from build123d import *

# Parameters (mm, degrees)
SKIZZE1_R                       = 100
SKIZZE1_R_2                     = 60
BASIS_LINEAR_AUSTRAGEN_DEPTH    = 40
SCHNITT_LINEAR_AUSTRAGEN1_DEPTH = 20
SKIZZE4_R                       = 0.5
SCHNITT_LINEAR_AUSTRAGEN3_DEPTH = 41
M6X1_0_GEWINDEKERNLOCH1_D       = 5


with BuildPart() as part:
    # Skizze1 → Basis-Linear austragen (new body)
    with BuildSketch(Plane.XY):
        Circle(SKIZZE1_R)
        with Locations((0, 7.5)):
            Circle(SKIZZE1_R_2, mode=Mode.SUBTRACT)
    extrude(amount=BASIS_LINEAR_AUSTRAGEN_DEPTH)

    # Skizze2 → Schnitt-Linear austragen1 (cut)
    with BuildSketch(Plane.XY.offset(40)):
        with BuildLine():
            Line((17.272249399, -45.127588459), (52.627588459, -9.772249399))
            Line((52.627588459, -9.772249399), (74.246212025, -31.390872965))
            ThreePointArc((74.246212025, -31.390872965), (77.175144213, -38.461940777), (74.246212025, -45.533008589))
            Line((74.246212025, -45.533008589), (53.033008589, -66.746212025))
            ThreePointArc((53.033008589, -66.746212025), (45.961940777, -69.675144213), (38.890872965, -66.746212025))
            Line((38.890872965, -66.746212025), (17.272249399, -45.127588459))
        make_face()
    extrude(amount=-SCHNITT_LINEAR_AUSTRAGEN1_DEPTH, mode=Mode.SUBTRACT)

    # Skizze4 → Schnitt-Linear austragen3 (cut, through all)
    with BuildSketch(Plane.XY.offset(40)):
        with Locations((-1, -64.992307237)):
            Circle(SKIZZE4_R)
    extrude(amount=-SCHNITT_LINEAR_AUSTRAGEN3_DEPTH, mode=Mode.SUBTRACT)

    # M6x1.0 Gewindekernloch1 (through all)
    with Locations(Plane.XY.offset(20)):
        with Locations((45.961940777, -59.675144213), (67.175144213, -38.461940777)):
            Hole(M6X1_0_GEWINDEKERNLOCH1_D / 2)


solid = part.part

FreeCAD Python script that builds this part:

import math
import FreeCAD as App
import Part
import Sketcher
Q = App.Units.Quantity

doc = App.newDocument("Part")
body = doc.addObject("PartDesign::Body", "Body")

# Sketch on XY plane
sketch1 = body.newObject("Sketcher::SketchObject", "Sketch")
sketch1.AttachmentSupport = (doc.getObject("XY_Plane"), [""])
sketch1.MapMode = "FlatFace"
sketch1.addGeometry(Part.Circle(App.Vector(0, 0, 0), App.Vector(0, 0, 1), 100), False)
sketch1.addGeometry(Part.Circle(App.Vector(0, 8, 0), App.Vector(0, 0, 1), 60), False)
sketch1.addConstraint(Sketcher.Constraint("Coincident", 0, 3, -1, 1))
sketch1.addConstraint(Sketcher.Constraint("PointOnObject", 1, 3, -2))
sketch1.addConstraint(Sketcher.Constraint("Diameter", 0, Q("200 mm")))
sketch1.addConstraint(Sketcher.Constraint("Diameter", 1, Q("120 mm")))
sketch1.addConstraint(Sketcher.Constraint("DistanceY", -1, 1, 1, 3, Q("7.5 mm")))
pad1 = body.newObject("PartDesign::Pad", "Pad")
pad1.Profile = sketch1
pad1.Length = 40

# Sketch on XY plane
sketch2 = body.newObject("Sketcher::SketchObject", "Sketch001")
sketch2.AttachmentSupport = (doc.getObject("XY_Plane"), [""])
sketch2.MapMode = "FlatFace"
sketch2.AttachmentOffset = App.Placement(App.Vector(0, 0, 40), App.Rotation())
sketch2.addGeometry(Part.LineSegment(App.Vector(53, -10, 0), App.Vector(17, -45, 0)), False)
sketch2.addGeometry(Part.LineSegment(App.Vector(17, -45, 0), App.Vector(39, -67, 0)), False)
sketch2.addGeometry(Part.ArcOfCircle(Part.Circle(App.Vector(46, -60, 0), App.Vector(0, 0, 1), 10), math.radians(-135), math.radians(-45)), False)
sketch2.addGeometry(Part.LineSegment(App.Vector(53, -67, 0), App.Vector(74, -46, 0)), False)
sketch2.addGeometry(Part.ArcOfCircle(Part.Circle(App.Vector(67, -38, 0), App.Vector(0, 0, 1), 10), math.radians(-45), math.radians(45)), False)
sketch2.addGeometry(Part.LineSegment(App.Vector(74, -31, 0), App.Vector(53, -10, 0)), False)
sketch2.addConstraint(Sketcher.Constraint("Coincident", 0, 2, 1, 1))
sketch2.addConstraint(Sketcher.Constraint("Tangent", 1, 2, 2, 1))
sketch2.addConstraint(Sketcher.Constraint("Tangent", 2, 2, 3, 1))
sketch2.addConstraint(Sketcher.Constraint("Tangent", 3, 2, 4, 1))
sketch2.addConstraint(Sketcher.Constraint("Tangent", 4, 2, 5, 1))
sketch2.addConstraint(Sketcher.Constraint("Coincident", 5, 2, 0, 1))
sketch2.addConstraint(Sketcher.Constraint("Equal", 2, 4))
sketch2.addConstraint(Sketcher.Constraint("Perpendicular", 0, 1))
sketch2.addConstraint(Sketcher.Constraint("Perpendicular", 1, 3))
sketch2.addConstraint(Sketcher.Constraint("Perpendicular", 3, 5))
sketch2.addConstraint(Sketcher.Constraint("Horizontal", 1, 2, 2, 2))
sketch2.addConstraint(Sketcher.Constraint("Radius", 2, Q("10 mm")))
sketch2.addConstraint(Sketcher.Constraint("Distance", 0, Q("50 mm")))
sketch2.addConstraint(Sketcher.Constraint("Distance", 1, Q("30.573351 mm")))
sketch2.addConstraint(Sketcher.Constraint("DistanceX", -1, 1, 2, 3, Q("45.961941 mm")))
sketch2.addConstraint(Sketcher.Constraint("DistanceY", 4, 3, -1, 1, Q("38.461941 mm")))
pocket1 = body.newObject("PartDesign::Pocket", "Pocket")
pocket1.Profile = sketch2
pocket1.Length = 20

# Sketch on XY plane
sketch3 = body.newObject("Sketcher::SketchObject", "Sketch002")
sketch3.AttachmentSupport = (doc.getObject("XY_Plane"), [""])
sketch3.MapMode = "FlatFace"
sketch3.AttachmentOffset = App.Placement(App.Vector(0, 0, 40), App.Rotation())
sketch3.addGeometry(Part.Circle(App.Vector(-1, -65, 0), App.Vector(0, 0, 1), 0.5), False)
sketch3.addConstraint(Sketcher.Constraint("Diameter", 0, Q("1 mm")))
sketch3.addConstraint(Sketcher.Constraint("DistanceX", 0, 3, -1, 1, Q("1 mm")))
sketch3.addConstraint(Sketcher.Constraint("DistanceY", 0, 3, -1, 1, Q("64.992307 mm")))
pocket2 = body.newObject("PartDesign::Pocket", "Pocket001")
pocket2.Profile = sketch3
pocket2.Type = "ThroughAll"

# Sketch on XY plane
sketch4 = body.newObject("Sketcher::SketchObject", "Sketch003")
sketch4.AttachmentSupport = (doc.getObject("XY_Plane"), [""])
sketch4.MapMode = "FlatFace"
sketch4.AttachmentOffset = App.Placement(App.Vector(0, 0, 20), App.Rotation())
sketch4.addGeometry(Part.Circle(App.Vector(46, -59.7, 0), App.Vector(0, 0, 1), 2.5), False)
sketch4.addGeometry(Part.Circle(App.Vector(67.2, -38.5, 0), App.Vector(0, 0, 1), 2.5), False)
sketch4.addConstraint(Sketcher.Constraint("Equal", 0, 1))
sketch4.addConstraint(Sketcher.Constraint("Diameter", 0, Q("5 mm")))
sketch4.addConstraint(Sketcher.Constraint("DistanceX", -1, 1, 0, 3, Q("45.961941 mm")))
sketch4.addConstraint(Sketcher.Constraint("DistanceY", 1, 3, -1, 1, Q("38.461941 mm")))
sketch4.addConstraint(Sketcher.Constraint("DistanceY", 0, 3, -1, 1, Q("59.675144 mm")))
sketch4.addConstraint(Sketcher.Constraint("DistanceX", -1, 1, 1, 3, Q("67.175144 mm")))
doc.recompute()
hole = body.newObject("PartDesign::Hole", "Hole")
hole.Profile = sketch4
hole.ThreadType = "None"
hole.Diameter = 5
hole.DepthType = "ThroughAll"

doc.recompute()
